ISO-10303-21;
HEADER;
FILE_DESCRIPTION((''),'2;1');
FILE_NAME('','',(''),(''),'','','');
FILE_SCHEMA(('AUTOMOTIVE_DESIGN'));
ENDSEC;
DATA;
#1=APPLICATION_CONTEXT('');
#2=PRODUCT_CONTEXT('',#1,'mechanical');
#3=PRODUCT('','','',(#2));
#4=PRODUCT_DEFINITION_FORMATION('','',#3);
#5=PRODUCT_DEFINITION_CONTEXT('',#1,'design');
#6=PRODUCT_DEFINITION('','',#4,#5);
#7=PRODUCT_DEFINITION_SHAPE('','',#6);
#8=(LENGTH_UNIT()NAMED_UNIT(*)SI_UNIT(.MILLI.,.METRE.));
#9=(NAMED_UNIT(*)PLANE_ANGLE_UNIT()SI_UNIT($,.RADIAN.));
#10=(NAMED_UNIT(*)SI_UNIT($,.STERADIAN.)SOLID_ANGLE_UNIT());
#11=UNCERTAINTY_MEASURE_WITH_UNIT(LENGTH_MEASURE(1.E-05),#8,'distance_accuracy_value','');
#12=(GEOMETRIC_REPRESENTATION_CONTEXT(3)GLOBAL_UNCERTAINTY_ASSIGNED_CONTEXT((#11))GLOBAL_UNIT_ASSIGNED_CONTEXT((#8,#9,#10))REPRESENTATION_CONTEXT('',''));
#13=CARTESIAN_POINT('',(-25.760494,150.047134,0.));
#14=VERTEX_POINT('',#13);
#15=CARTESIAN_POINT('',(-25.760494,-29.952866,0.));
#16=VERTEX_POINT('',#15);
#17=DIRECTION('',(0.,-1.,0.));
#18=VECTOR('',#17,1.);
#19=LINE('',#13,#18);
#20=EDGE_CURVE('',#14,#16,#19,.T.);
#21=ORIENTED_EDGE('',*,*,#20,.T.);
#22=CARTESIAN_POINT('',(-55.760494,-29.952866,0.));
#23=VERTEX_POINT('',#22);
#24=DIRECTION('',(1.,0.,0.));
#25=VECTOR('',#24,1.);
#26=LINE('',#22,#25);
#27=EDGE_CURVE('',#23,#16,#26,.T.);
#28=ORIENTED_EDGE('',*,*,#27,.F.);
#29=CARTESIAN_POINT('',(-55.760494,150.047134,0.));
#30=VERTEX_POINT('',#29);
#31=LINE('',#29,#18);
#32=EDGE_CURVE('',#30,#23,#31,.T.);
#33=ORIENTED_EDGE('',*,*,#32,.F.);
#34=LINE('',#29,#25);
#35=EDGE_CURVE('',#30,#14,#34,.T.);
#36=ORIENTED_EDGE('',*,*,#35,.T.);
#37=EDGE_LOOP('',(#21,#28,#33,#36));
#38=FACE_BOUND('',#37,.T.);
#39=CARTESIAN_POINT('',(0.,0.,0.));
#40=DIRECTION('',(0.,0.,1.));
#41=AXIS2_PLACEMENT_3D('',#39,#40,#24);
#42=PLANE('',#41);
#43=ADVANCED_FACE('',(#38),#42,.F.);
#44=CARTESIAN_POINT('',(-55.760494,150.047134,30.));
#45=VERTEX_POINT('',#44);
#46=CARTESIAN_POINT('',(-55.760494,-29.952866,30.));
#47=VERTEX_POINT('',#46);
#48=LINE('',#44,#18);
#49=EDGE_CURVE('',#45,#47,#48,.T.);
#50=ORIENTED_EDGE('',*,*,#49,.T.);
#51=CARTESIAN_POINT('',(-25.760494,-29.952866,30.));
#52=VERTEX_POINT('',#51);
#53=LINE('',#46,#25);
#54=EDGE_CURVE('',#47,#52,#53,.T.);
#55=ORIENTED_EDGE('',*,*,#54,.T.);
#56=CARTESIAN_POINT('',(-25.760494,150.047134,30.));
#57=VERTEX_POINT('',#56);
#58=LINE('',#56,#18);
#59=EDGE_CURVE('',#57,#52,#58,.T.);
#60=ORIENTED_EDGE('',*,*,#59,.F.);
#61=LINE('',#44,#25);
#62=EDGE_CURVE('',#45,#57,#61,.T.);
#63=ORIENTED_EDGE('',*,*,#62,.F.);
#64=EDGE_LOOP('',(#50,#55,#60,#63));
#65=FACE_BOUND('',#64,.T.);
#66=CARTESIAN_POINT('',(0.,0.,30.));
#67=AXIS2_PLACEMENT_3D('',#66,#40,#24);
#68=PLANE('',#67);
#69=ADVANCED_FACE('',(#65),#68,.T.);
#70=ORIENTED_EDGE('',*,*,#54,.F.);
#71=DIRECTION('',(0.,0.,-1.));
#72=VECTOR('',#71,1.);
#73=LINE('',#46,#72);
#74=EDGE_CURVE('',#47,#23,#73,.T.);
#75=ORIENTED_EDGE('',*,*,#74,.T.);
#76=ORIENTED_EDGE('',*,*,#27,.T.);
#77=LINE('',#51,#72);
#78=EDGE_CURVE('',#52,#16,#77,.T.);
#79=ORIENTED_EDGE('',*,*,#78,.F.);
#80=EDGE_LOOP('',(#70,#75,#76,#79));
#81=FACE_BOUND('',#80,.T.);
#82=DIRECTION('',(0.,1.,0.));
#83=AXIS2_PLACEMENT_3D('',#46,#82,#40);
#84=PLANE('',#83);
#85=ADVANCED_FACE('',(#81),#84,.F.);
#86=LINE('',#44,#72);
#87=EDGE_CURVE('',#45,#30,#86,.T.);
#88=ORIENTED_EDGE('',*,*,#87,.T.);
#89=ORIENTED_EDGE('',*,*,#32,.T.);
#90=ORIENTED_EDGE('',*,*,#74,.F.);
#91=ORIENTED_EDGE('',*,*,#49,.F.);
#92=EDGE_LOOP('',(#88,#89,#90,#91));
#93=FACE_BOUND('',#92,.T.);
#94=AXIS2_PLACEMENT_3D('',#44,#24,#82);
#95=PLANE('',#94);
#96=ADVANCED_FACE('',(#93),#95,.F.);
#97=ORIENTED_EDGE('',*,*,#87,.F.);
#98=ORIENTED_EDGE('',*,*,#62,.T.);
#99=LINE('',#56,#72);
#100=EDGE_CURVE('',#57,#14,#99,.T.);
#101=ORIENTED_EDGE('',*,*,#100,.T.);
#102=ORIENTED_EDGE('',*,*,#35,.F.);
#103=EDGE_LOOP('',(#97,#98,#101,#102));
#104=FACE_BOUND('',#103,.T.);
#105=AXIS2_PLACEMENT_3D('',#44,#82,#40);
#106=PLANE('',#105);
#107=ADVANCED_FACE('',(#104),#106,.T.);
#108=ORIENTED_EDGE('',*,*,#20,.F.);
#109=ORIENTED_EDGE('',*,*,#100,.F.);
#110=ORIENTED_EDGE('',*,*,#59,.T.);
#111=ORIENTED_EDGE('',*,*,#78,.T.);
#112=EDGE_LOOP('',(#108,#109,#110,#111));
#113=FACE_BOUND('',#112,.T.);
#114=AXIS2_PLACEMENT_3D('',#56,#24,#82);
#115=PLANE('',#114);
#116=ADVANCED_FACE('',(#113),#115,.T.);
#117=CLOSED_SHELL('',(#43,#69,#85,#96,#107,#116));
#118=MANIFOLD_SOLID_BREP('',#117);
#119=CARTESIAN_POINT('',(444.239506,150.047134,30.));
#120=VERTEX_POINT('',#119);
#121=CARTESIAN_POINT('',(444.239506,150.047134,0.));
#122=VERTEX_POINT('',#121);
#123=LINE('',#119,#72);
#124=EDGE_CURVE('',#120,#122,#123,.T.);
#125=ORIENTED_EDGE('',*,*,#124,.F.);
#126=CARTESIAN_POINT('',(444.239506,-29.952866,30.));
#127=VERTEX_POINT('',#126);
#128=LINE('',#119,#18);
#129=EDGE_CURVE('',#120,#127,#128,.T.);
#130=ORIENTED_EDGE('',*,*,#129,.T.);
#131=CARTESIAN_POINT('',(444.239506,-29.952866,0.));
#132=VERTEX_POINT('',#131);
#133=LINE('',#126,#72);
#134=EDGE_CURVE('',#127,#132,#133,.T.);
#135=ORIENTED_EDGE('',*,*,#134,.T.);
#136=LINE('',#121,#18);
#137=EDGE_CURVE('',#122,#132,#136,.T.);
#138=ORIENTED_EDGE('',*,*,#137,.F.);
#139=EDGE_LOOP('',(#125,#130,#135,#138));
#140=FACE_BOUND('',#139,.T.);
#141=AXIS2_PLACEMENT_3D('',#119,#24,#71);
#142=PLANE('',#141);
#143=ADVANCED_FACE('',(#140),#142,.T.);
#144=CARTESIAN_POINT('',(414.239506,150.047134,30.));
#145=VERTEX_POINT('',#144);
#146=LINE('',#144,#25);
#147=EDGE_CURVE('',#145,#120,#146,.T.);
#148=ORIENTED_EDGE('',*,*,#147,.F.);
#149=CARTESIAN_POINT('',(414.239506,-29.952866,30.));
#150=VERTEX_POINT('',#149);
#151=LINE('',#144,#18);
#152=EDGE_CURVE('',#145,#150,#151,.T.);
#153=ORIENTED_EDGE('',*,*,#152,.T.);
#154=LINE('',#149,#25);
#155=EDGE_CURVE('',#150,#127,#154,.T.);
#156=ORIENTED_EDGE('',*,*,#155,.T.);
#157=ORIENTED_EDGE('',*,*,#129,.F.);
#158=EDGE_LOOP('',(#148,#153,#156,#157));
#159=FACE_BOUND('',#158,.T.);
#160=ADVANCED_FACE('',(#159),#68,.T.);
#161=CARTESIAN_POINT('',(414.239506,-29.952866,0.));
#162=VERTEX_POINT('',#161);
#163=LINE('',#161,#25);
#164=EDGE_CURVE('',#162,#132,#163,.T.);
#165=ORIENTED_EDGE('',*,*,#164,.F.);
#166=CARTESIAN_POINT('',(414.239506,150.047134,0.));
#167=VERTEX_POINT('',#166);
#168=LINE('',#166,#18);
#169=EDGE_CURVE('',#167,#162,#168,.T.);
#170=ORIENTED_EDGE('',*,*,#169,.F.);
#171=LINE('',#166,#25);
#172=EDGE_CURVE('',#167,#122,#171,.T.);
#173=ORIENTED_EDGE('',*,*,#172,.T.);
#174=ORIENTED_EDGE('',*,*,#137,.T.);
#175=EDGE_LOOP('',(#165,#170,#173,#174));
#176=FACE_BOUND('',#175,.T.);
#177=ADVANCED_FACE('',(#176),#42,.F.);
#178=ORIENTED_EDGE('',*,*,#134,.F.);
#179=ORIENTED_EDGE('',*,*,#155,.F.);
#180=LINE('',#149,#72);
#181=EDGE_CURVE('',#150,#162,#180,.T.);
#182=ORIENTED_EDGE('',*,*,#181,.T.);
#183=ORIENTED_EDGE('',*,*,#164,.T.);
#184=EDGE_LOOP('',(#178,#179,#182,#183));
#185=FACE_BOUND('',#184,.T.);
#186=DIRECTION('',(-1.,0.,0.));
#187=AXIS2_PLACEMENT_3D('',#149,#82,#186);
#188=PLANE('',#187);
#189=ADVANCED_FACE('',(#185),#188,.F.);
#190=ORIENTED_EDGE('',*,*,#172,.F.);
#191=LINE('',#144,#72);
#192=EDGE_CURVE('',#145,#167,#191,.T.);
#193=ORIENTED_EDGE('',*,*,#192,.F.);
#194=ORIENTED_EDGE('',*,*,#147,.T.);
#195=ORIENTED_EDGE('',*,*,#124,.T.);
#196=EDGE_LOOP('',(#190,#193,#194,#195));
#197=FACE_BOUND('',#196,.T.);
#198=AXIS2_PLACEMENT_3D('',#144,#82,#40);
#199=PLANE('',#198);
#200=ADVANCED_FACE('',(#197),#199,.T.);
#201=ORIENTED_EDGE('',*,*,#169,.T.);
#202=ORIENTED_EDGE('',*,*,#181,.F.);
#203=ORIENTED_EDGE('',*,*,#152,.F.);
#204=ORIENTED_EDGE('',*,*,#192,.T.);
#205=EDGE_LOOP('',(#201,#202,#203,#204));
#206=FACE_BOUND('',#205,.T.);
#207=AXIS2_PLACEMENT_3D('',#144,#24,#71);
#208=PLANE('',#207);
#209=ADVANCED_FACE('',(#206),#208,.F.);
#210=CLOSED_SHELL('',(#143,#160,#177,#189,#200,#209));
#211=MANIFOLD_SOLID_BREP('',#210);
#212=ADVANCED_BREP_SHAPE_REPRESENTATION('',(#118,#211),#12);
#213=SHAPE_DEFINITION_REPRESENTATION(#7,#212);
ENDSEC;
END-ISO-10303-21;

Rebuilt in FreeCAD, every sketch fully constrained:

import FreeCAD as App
import Part
import Sketcher
Q = App.Units.Quantity

doc = App.newDocument("Part")
body = doc.addObject("PartDesign::Body", "Body")

sketch1 = body.newObject("Sketcher::SketchObject", "Sketch")
sketch1.AttachmentSupport = (doc.getObject("XY_Plane"), [""])
sketch1.MapMode = "FlatFace"
sketch1.addGeometry([
    Part.LineSegment(App.Vector(-56, 150, 0), App.Vector(-56, -30, 0)),
    Part.LineSegment(App.Vector(-56, -30, 0), App.Vector(-26, -30, 0)),
    Part.LineSegment(App.Vector(-26, -30, 0), App.Vector(-26, 150, 0)),
    Part.LineSegment(App.Vector(-26, 150, 0), App.Vector(-56, 150, 0)),
], False)
sketch1.addConstraint([
    Sketcher.Constraint("Coincident", 0, 2, 1, 1),
    Sketcher.Constraint("Coincident", 1, 2, 2, 1),
    Sketcher.Constraint("Coincident", 2, 2, 3, 1),
    Sketcher.Constraint("Coincident", 3, 2, 0, 1),
    Sketcher.Constraint("Vertical", 0),
    Sketcher.Constraint("Horizontal", 1),
    Sketcher.Constraint("Vertical", 2),
    Sketcher.Constraint("Horizontal", 3),
    Sketcher.Constraint("DistanceX", 1, 1, 1, 2, Q("30 mm")),
    Sketcher.Constraint("DistanceY", 0, 2, 0, 1, Q("180 mm")),
    Sketcher.Constraint("DistanceX", 0, 2, -1, 1, Q("55.760494 mm")),
    Sketcher.Constraint("DistanceY", 0, 2, -1, 1, Q("29.952866 mm")),
])
pad1 = body.newObject("PartDesign::Pad", "Pad")
pad1.Profile = sketch1
pad1.Length = 30
body2 = doc.addObject("PartDesign::Body", "Body001")

sketch2 = body2.newObject("Sketcher::SketchObject", "Sketch001")
sketch2.AttachmentSupport = (doc.getObject("XY_Plane001"), [""])
sketch2.MapMode = "FlatFace"
sketch2.addGeometry([
    Part.LineSegment(App.Vector(414, 150, 0), App.Vector(414, -30, 0)),
    Part.LineSegment(App.Vector(414, -30, 0), App.Vector(444, -30, 0)),
    Part.LineSegment(App.Vector(444, -30, 0), App.Vector(444, 150, 0)),
    Part.LineSegment(App.Vector(444, 150, 0), App.Vector(414, 150, 0)),
], False)
sketch2.addConstraint([
    Sketcher.Constraint("Coincident", 0, 2, 1, 1),
    Sketcher.Constraint("Coincident", 1, 2, 2, 1),
    Sketcher.Constraint("Coincident", 2, 2, 3, 1),
    Sketcher.Constraint("Coincident", 3, 2, 0, 1),
    Sketcher.Constraint("Vertical", 0),
    Sketcher.Constraint("Horizontal", 1),
    Sketcher.Constraint("Vertical", 2),
    Sketcher.Constraint("Horizontal", 3),
    Sketcher.Constraint("DistanceX", 1, 1, 1, 2, Q("30 mm")),
    Sketcher.Constraint("DistanceY", 0, 2, 0, 1, Q("180 mm")),
    Sketcher.Constraint("DistanceX", -1, 1, 0, 2, Q("414.239506 mm")),
    Sketcher.Constraint("DistanceY", 0, 2, -1, 1, Q("29.952866 mm")),
])
pad2 = body2.newObject("PartDesign::Pad", "Pad001")
pad2.Profile = sketch2
pad2.Length = 30

doc.recompute()
